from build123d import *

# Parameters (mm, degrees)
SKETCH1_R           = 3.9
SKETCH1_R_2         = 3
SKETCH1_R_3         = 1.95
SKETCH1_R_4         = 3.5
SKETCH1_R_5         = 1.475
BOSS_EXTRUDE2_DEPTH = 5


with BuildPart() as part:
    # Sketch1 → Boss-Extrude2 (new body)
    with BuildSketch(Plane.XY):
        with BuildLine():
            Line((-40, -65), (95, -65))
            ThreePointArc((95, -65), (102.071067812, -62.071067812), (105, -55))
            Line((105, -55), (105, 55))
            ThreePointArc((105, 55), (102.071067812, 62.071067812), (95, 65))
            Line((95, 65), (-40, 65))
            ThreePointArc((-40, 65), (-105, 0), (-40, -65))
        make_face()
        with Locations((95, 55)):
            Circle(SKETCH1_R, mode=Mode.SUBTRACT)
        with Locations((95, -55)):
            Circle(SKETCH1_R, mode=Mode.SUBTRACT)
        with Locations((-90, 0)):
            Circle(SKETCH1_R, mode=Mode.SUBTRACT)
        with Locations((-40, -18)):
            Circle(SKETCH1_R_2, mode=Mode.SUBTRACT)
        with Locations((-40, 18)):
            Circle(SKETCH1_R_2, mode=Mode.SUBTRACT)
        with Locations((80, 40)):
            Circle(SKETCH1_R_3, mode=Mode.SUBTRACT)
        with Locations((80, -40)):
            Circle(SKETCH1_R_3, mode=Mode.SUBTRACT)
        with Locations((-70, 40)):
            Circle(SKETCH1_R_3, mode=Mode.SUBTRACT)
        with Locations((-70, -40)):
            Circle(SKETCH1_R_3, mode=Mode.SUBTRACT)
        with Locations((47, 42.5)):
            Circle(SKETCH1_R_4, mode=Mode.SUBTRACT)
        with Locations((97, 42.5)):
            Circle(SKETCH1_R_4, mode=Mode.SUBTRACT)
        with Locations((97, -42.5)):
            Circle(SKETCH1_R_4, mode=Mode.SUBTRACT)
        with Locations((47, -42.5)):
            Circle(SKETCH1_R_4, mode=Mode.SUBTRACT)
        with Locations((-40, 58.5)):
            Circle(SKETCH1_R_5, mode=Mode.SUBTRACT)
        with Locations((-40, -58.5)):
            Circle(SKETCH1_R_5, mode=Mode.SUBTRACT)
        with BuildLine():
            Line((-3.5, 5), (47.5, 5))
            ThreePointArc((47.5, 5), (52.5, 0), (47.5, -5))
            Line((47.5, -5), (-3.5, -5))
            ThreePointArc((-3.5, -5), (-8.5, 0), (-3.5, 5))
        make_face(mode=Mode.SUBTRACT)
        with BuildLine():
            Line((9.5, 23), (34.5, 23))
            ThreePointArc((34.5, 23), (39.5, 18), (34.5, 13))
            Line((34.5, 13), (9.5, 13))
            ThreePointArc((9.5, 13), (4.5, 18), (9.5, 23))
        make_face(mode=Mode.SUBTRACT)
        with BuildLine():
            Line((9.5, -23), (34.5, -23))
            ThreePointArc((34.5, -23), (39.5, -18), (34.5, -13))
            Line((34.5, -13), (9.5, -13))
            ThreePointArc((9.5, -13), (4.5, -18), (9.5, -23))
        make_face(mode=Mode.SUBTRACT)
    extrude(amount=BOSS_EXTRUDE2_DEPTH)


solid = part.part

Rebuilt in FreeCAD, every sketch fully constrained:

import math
import FreeCAD as App
import Part
import Sketcher

V = App.Vector
Q = App.Units.Quantity

doc = App.newDocument("Part")
body = doc.addObject("PartDesign::Body", "Body")

# Sketch on XY plane
sketch1 = body.newObject("Sketcher::SketchObject", "Sketch")
sketch1.AttachmentSupport = (doc.getObject("XY_Plane"), [""])
sketch1.MapMode = "FlatFace"
sketch1.addGeometry(Part.LineSegment(V(-40, -65, 0), V(95, -65, 0)), False)
sketch1.addGeometry(Part.ArcOfCircle(Part.Circle(V(95, -55, 0), V(0, 0, 1), 10), math.radians(-90), math.radians(0)), False)
sketch1.addGeometry(Part.LineSegment(V(105, -55, 0), V(105, 55, 0)), False)
sketch1.addGeometry(Part.ArcOfCircle(Part.Circle(V(95, 55, 0), V(0, 0, 1), 10), math.radians(0), math.radians(90)), False)
sketch1.addGeometry(Part.LineSegment(V(95, 65, 0), V(-40, 65, 0)), False)
sketch1.addGeometry(Part.ArcOfCircle(Part.Circle(V(-40, 0, 0), V(0, 0, 1), 65), math.radians(90), math.radians(270)), False)
sketch1.addGeometry(Part.Circle(V(-70, -40, 0), V(0, 0, 1), 1.95), False)
sketch1.addGeometry(Part.Circle(V(-40, -58.5, 0), V(0, 0, 1), 1.475), False)
sketch1.addGeometry(Part.Circle(V(-40, -18, 0), V(0, 0, 1), 3), False)
sketch1.addGeometry(Part.Circle(V(47, -42.5, 0), V(0, 0, 1), 3.5), False)
sketch1.addGeometry(Part.Circle(V(95, -55, 0), V(0, 0, 1), 3.9), False)
sketch1.addGeometry(Part.Circle(V(80, -40, 0), V(0, 0, 1), 1.95), False)
sketch1.addGeometry(Part.Circle(V(97, -42.5, 0), V(0, 0, 1), 3.5), False)
sketch1.addGeometry(Part.LineSegment(V(34.5, -23, 0), V(9.5, -23, 0)), False)
sketch1.addGeometry(Part.ArcOfCircle(Part.Circle(V(9.5, -18, 0), V(0, 0, 1), 5), math.radians(90), math.radians(270)), False)
sketch1.addGeometry(Part.LineSegment(V(9.5, -13, 0), V(34.5, -13, 0)), False)
sketch1.addGeometry(Part.ArcOfCircle(Part.Circle(V(34.5, -18, 0), V(0, 0, 1), 5), math.radians(-90), math.radians(90)), False)
sketch1.addGeometry(Part.Circle(V(-90, 0, 0), V(0, 0, 1), 3.9), False)
sketch1.addGeometry(Part.Circle(V(-40, 18, 0), V(0, 0, 1), 3), False)
sketch1.addGeometry(Part.Circle(V(-70, 40, 0), V(0, 0, 1), 1.95), False)
sketch1.addGeometry(Part.Circle(V(-40, 58.5, 0), V(0, 0, 1), 1.475), False)
sketch1.addGeometry(Part.ArcOfCircle(Part.Circle(V(-3.5, 0, 0), V(0, 0, 1), 5), math.radians(90), math.radians(270)), False)
sketch1.addGeometry(Part.LineSegment(V(-3.5, 5, 0), V(47.5, 5, 0)), False)
sketch1.addGeometry(Part.ArcOfCircle(Part.Circle(V(47.5, 0, 0), V(0, 0, 1), 5), math.radians(-90), math.radians(90)), False)
sketch1.addGeometry(Part.LineSegment(V(47.5, -5, 0), V(-3.5, -5, 0)), False)
sketch1.addGeometry(Part.ArcOfCircle(Part.Circle(V(9.5, 18, 0), V(0, 0, 1), 5), math.radians(90), math.radians(270)), False)
sketch1.addGeometry(Part.LineSegment(V(9.5, 23, 0), V(34.5, 23, 0)), False)
sketch1.addGeometry(Part.ArcOfCircle(Part.Circle(V(34.5, 18, 0), V(0, 0, 1), 5), math.radians(-90), math.radians(90)), False)
sketch1.addGeometry(Part.LineSegment(V(34.5, 13, 0), V(9.5, 13, 0)), False)
sketch1.addGeometry(Part.Circle(V(47, 42.5, 0), V(0, 0, 1), 3.5), False)
sketch1.addGeometry(Part.Circle(V(80, 40, 0), V(0, 0, 1), 1.95), False)
sketch1.addGeometry(Part.Circle(V(97, 42.5, 0), V(0, 0, 1), 3.5), False)
sketch1.addGeometry(Part.Circle(V(95, 55, 0), V(0, 0, 1), 3.9), False)
sketch1.addConstraint(Sketcher.Constraint("Tangent", 0, 2, 1, 1))
sketch1.addConstraint(Sketcher.Constraint("Tangent", 1, 2, 2, 1))
sketch1.addConstraint(Sketcher.Constraint("Tangent", 2, 2, 3, 1))
sketch1.addConstraint(Sketcher.Constraint("Tangent", 3, 2, 4, 1))
sketch1.addConstraint(Sketcher.Constraint("Tangent", 4, 2, 5, 1))
sketch1.addConstraint(Sketcher.Constraint("Tangent", 5, 2, 0, 1))
sketch1.addConstraint(Sketcher.Constraint("Tangent", 13, 2, 14, 2))
sketch1.addConstraint(Sketcher.Constraint("Tangent", 14, 1, 15, 1))
sketch1.addConstraint(Sketcher.Constraint("Tangent", 15, 2, 16, 2))
sketch1.addConstraint(Sketcher.Constraint("Tangent", 16, 1, 13, 1))
sketch1.addConstraint(Sketcher.Constraint("Tangent", 21, 1, 22, 1))
sketch1.addConstraint(Sketcher.Constraint("Tangent", 22, 2, 23, 2))
sketch1.addConstraint(Sketcher.Constraint("Tangent", 23, 1, 24, 1))
sketch1.addConstraint(Sketcher.Constraint("Tangent", 24, 2, 21, 2))
sketch1.addConstraint(Sketcher.Constraint("Tangent", 25, 1, 26, 1))
sketch1.addConstraint(Sketcher.Constraint("Tangent", 26, 2, 27, 2))
sketch1.addConstraint(Sketcher.Constraint("Tangent", 27, 1, 28, 1))
sketch1.addConstraint(Sketcher.Constraint("Tangent", 28, 2, 25, 2))
sketch1.addConstraint(Sketcher.Constraint("Horizontal", 0))
sketch1.addConstraint(Sketcher.Constraint("Vertical", 2))
sketch1.addConstraint(Sketcher.Constraint("Horizontal", 4))
sketch1.addConstraint(Sketcher.Constraint("Horizontal", 13))
sketch1.addConstraint(Sketcher.Constraint("Horizontal", 15))
sketch1.addConstraint(Sketcher.Constraint("Horizontal", 22))
sketch1.addConstraint(Sketcher.Constraint("Horizontal", 24))
sketch1.addConstraint(Sketcher.Constraint("Horizontal", 26))
sketch1.addConstraint(Sketcher.Constraint("Horizontal", 28))
sketch1.addConstraint(Sketcher.Constraint("Coincident", 10, 3, 1, 3))
sketch1.addConstraint(Sketcher.Constraint("Coincident", 32, 3, 3, 3))
sketch1.addConstraint(Sketcher.Constraint("Equal", 1, 3))
sketch1.addConstraint(Sketcher.Constraint("Equal", 6, 11))
sketch1.addConstraint(Sketcher.Constraint("Equal", 9, 12))
sketch1.addConstraint(Sketcher.Constraint("Equal", 10, 17))
sketch1.addConstraint(Sketcher.Constraint("Equal", 8, 18))
sketch1.addConstraint(Sketcher.Constraint("Equal", 11, 19))
sketch1.addConstraint(Sketcher.Constraint("Equal", 7, 20))
sketch1.addConstraint(Sketcher.Constraint("Equal", 16, 21))
sketch1.addConstraint(Sketcher.Constraint("Equal", 23, 25))
sketch1.addConstraint(Sketcher.Constraint("Equal", 12, 29))
sketch1.addConstraint(Sketcher.Constraint("Equal", 19, 30))
sketch1.addConstraint(Sketcher.Constraint("Equal", 29, 31))
sketch1.addConstraint(Sketcher.Constraint("Equal", 17, 32))
sketch1.addConstraint(Sketcher.Constraint("Symmetric", 8, 3, 18, 3, -1))
sketch1.addConstraint(Sketcher.Constraint("Symmetric", 6, 3, 19, 3, -1))
sketch1.addConstraint(Sketcher.Constraint("Symmetric", 7, 3, 20, 3, -1))
sketch1.addConstraint(Sketcher.Constraint("Symmetric", 14, 3, 25, 3, -1))
sketch1.addConstraint(Sketcher.Constraint("Symmetric", 9, 3, 29, 3, -1))
sketch1.addConstraint(Sketcher.Constraint("Symmetric", 11, 3, 30, 3, -1))
sketch1.addConstraint(Sketcher.Constraint("Symmetric", 12, 3, 31, 3, -1))
sketch1.addConstraint(Sketcher.Constraint("PointOnObject", 5, 3, -1))
sketch1.addConstraint(Sketcher.Constraint("PointOnObject", 17, 3, -1))
sketch1.addConstraint(Sketcher.Constraint("PointOnObject", 21, 3, -1))
sketch1.addConstraint(Sketcher.Constraint("Horizontal", 6, 3, 11, 3))
sketch1.addConstraint(Sketcher.Constraint("Horizontal", 9, 3, 12, 3))
sketch1.addConstraint(Sketcher.Constraint("Horizontal", 8, 3, 14, 3))
sketch1.addConstraint(Sketcher.Constraint("Vertical", 5, 3, 7, 3))
sketch1.addConstraint(Sketcher.Constraint("Vertical", 7, 3, 8, 3))
sketch1.addConstraint(Sketcher.Constraint("Vertical", 16, 3, 27, 3))
sketch1.addConstraint(Sketcher.Constraint("Diameter", 8, Q("6 mm")))
sketch1.addConstraint(Sketcher.Constraint("Diameter", 9, Q("7 mm")))
sketch1.addConstraint(Sketcher.Constraint("Radius", 1, Q("10 mm")))
sketch1.addConstraint(Sketcher.Constraint("Radius", 5, Q("65 mm")))
sketch1.addConstraint(Sketcher.Constraint("Radius", 14, Q("5 mm")))
sketch1.addConstraint(Sketcher.Constraint("Diameter", 6, Q("3.9 mm")))
sketch1.addConstraint(Sketcher.Constraint("Diameter", 10, Q("7.8 mm")))
sketch1.addConstraint(Sketcher.Constraint("Diameter", 7, Q("2.95 mm")))
sketch1.addConstraint(Sketcher.Constraint("DistanceX", 0, 1, 0, 2, Q("135 mm")))
sketch1.addConstraint(Sketcher.Constraint("DistanceX", 13, 2, 13, 1, Q("25 mm")))
sketch1.addConstraint(Sketcher.Constraint("DistanceX", 22, 1, 22, 2, Q("51 mm")))
sketch1.addConstraint(Sketcher.Constraint("DistanceX", -1, 1, 1, 3, Q("95 mm")))
sketch1.addConstraint(Sketcher.Constraint("DistanceX", 6, 3, -1, 1, Q("70 mm")))
sketch1.addConstraint(Sketcher.Constraint("DistanceY", 6, 3, -1, 1, Q("40 mm")))
sketch1.addConstraint(Sketcher.Constraint("DistanceY", 8, 3, -1, 1, Q("18 mm")))
sketch1.addConstraint(Sketcher.Constraint("DistanceX", -1, 1, 9, 3, Q("47 mm")))
sketch1.addConstraint(Sketcher.Constraint("DistanceX", -1, 1, 11, 3, Q("80 mm")))
sketch1.addConstraint(Sketcher.Constraint("DistanceX", -1, 1, 12, 3, Q("97 mm")))
sketch1.addConstraint(Sketcher.Constraint("DistanceX", 17, 3, -1, 1, Q("90 mm")))
sketch1.addConstraint(Sketcher.Constraint("DistanceY", 7, 3, 9, 3, Q("16 mm")))
sketch1.addConstraint(Sketcher.Constraint("DistanceX", 21, 3, 14, 3, Q("13 mm")))
sketch1.addConstraint(Sketcher.Constraint("DistanceY", 7, 3, -1, 1, Q("58.5 mm")))
sketch1.addConstraint(Sketcher.Constraint("DistanceX", -1, 1, 14, 3, Q("9.5 mm")))
pad1 = body.newObject("PartDesign::Pad", "Pad")
pad1.Profile = sketch1
pad1.Length = 5

doc.recompute()
